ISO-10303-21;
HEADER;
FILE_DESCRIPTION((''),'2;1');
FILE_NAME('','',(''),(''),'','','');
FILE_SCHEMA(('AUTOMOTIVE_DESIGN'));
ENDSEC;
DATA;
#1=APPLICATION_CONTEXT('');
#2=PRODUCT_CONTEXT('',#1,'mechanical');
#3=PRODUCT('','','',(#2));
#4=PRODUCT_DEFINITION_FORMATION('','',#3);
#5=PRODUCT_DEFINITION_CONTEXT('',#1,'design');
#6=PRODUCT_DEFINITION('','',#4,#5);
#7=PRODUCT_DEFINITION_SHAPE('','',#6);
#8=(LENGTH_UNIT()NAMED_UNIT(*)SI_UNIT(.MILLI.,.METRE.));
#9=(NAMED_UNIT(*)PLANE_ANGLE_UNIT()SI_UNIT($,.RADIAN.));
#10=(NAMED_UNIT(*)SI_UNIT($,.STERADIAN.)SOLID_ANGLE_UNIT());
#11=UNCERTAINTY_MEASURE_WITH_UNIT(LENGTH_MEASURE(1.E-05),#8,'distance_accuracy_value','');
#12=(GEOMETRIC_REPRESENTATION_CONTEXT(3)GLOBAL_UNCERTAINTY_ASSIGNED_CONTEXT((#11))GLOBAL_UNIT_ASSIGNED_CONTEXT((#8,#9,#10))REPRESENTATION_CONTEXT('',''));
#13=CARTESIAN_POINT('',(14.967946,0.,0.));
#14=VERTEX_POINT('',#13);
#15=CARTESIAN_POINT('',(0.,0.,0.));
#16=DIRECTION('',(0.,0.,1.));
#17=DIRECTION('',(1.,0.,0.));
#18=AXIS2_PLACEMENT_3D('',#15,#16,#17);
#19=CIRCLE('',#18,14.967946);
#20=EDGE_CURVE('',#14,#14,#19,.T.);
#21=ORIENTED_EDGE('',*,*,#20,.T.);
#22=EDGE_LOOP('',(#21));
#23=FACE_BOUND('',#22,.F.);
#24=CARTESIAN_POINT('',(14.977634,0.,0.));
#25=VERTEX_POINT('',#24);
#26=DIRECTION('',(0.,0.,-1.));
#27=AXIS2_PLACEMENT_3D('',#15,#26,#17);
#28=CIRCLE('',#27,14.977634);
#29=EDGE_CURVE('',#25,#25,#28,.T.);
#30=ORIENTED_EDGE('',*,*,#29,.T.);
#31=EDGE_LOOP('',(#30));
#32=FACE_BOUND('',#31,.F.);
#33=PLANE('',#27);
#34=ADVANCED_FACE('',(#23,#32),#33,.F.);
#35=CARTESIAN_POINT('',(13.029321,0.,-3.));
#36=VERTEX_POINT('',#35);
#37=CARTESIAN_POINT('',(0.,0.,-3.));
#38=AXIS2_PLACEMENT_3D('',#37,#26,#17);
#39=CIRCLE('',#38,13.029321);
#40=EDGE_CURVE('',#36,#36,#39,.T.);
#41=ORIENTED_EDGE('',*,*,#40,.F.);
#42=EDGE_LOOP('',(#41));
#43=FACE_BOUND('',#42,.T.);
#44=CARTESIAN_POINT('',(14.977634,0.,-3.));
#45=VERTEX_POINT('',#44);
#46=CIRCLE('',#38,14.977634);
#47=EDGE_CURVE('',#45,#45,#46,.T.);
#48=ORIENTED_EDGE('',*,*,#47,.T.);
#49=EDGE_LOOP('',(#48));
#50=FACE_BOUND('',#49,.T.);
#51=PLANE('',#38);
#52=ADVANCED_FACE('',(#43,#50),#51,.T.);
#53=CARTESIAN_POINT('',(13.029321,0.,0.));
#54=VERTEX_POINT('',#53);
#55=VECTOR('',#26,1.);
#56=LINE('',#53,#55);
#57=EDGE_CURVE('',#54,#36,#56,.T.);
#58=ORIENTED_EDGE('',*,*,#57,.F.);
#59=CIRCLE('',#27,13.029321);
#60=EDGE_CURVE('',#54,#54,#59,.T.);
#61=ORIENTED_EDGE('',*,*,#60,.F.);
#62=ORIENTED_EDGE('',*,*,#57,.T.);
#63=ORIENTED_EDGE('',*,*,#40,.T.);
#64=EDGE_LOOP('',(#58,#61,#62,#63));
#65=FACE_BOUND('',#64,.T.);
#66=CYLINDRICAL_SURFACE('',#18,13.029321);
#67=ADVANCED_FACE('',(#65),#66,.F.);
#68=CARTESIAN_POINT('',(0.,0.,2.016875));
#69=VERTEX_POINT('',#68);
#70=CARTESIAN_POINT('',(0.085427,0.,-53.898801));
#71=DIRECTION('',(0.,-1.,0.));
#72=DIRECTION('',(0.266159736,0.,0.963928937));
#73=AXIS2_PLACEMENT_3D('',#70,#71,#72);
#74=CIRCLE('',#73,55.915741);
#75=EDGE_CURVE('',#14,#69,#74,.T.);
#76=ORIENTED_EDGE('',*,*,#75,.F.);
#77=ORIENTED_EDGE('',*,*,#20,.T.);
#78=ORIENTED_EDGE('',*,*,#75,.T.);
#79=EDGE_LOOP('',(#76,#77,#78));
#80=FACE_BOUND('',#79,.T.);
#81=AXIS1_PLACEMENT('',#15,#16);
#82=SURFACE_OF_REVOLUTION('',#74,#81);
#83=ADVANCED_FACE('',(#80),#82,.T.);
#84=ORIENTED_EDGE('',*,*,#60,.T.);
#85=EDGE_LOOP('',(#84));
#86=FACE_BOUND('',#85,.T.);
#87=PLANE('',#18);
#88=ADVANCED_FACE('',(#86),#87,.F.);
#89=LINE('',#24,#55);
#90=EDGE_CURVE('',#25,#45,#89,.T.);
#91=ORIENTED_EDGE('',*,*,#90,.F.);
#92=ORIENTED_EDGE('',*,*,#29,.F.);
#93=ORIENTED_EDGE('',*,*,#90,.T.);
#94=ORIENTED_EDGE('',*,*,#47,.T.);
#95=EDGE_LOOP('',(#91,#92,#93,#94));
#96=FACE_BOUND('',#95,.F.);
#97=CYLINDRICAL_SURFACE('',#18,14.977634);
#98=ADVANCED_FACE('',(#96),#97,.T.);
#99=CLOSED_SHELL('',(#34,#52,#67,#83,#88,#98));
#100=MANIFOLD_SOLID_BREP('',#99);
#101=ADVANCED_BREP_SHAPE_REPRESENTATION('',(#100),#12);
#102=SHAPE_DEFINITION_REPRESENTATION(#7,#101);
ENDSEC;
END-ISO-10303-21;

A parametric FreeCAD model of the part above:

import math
import FreeCAD as App
import Part
import Sketcher

V = App.Vector

doc = App.newDocument("Part")
body = doc.addObject("PartDesign::Body", "Body")

# Sketch on XZ plane
sketch1 = body.newObject("Sketcher::SketchObject", "Sketch")
sketch1.AttachmentSupport = (doc.getObject("XZ_Plane"), [""])
sketch1.MapMode = "FlatFace"
sketch1.addGeometry([
    Part.LineSegment(V(0, 2, 0), V(0, 0, 0)),
    Part.LineSegment(V(0, 0, 0), V(15, 0, 0)),
    Part.ArcOfCircle(Part.Circle(V(0.1, -53.9, 0), V(0, 0, 1), 55.9), math.radians(74.56), math.radians(90.09)),
], False)
sketch1.addConstraint([
    Sketcher.Constraint("Coincident", 0, 2, 1, 1),
    Sketcher.Constraint("Coincident", 1, 2, 2, 1),
    Sketcher.Constraint("Coincident", 2, 2, 0, 1),
    Sketcher.Constraint("Vertical", 0),
    Sketcher.Constraint("Horizontal", 1),
    Sketcher.Constraint("Coincident", 0, 2, -1, 1),
    Sketcher.Constraint("Radius", 2, 55.915741),
    Sketcher.Constraint("DistanceY", 2, 3, -1, 1, 53.898801),
    Sketcher.Constraint("DistanceX", 1, 1, 1, 2, 14.967946),
])
revolution = body.newObject("PartDesign::Revolution", "Revolution")
revolution.Profile = sketch1
revolution.ReferenceAxis = (sketch1, ["V_Axis"])
revolution.Angle = 360

# Sketch on XY plane
sketch2 = body.newObject("Sketcher::SketchObject", "Sketch001")
sketch2.AttachmentSupport = (doc.getObject("XY_Plane"), [""])
sketch2.MapMode = "FlatFace"
sketch2.addGeometry([
    Part.Circle(V(0, 0, 0), V(0, 0, 1), 15),
    Part.Circle(V(0, 0, 0), V(0, 0, 1), 13),
], False)
sketch2.addConstraint([
    Sketcher.Constraint("Coincident", 0, 3, -1, 1),
    Sketcher.Constraint("Coincident", 1, 3, -1, 1),
    Sketcher.Constraint("Diameter", 0, 29.955268),
    Sketcher.Constraint("Diameter", 1, 26.058642),
])
pad1 = body.newObject("PartDesign::Pad", "Pad")
pad1.Profile = sketch2
pad1.Length = 3
pad1.Reversed = True

doc.recompute()
